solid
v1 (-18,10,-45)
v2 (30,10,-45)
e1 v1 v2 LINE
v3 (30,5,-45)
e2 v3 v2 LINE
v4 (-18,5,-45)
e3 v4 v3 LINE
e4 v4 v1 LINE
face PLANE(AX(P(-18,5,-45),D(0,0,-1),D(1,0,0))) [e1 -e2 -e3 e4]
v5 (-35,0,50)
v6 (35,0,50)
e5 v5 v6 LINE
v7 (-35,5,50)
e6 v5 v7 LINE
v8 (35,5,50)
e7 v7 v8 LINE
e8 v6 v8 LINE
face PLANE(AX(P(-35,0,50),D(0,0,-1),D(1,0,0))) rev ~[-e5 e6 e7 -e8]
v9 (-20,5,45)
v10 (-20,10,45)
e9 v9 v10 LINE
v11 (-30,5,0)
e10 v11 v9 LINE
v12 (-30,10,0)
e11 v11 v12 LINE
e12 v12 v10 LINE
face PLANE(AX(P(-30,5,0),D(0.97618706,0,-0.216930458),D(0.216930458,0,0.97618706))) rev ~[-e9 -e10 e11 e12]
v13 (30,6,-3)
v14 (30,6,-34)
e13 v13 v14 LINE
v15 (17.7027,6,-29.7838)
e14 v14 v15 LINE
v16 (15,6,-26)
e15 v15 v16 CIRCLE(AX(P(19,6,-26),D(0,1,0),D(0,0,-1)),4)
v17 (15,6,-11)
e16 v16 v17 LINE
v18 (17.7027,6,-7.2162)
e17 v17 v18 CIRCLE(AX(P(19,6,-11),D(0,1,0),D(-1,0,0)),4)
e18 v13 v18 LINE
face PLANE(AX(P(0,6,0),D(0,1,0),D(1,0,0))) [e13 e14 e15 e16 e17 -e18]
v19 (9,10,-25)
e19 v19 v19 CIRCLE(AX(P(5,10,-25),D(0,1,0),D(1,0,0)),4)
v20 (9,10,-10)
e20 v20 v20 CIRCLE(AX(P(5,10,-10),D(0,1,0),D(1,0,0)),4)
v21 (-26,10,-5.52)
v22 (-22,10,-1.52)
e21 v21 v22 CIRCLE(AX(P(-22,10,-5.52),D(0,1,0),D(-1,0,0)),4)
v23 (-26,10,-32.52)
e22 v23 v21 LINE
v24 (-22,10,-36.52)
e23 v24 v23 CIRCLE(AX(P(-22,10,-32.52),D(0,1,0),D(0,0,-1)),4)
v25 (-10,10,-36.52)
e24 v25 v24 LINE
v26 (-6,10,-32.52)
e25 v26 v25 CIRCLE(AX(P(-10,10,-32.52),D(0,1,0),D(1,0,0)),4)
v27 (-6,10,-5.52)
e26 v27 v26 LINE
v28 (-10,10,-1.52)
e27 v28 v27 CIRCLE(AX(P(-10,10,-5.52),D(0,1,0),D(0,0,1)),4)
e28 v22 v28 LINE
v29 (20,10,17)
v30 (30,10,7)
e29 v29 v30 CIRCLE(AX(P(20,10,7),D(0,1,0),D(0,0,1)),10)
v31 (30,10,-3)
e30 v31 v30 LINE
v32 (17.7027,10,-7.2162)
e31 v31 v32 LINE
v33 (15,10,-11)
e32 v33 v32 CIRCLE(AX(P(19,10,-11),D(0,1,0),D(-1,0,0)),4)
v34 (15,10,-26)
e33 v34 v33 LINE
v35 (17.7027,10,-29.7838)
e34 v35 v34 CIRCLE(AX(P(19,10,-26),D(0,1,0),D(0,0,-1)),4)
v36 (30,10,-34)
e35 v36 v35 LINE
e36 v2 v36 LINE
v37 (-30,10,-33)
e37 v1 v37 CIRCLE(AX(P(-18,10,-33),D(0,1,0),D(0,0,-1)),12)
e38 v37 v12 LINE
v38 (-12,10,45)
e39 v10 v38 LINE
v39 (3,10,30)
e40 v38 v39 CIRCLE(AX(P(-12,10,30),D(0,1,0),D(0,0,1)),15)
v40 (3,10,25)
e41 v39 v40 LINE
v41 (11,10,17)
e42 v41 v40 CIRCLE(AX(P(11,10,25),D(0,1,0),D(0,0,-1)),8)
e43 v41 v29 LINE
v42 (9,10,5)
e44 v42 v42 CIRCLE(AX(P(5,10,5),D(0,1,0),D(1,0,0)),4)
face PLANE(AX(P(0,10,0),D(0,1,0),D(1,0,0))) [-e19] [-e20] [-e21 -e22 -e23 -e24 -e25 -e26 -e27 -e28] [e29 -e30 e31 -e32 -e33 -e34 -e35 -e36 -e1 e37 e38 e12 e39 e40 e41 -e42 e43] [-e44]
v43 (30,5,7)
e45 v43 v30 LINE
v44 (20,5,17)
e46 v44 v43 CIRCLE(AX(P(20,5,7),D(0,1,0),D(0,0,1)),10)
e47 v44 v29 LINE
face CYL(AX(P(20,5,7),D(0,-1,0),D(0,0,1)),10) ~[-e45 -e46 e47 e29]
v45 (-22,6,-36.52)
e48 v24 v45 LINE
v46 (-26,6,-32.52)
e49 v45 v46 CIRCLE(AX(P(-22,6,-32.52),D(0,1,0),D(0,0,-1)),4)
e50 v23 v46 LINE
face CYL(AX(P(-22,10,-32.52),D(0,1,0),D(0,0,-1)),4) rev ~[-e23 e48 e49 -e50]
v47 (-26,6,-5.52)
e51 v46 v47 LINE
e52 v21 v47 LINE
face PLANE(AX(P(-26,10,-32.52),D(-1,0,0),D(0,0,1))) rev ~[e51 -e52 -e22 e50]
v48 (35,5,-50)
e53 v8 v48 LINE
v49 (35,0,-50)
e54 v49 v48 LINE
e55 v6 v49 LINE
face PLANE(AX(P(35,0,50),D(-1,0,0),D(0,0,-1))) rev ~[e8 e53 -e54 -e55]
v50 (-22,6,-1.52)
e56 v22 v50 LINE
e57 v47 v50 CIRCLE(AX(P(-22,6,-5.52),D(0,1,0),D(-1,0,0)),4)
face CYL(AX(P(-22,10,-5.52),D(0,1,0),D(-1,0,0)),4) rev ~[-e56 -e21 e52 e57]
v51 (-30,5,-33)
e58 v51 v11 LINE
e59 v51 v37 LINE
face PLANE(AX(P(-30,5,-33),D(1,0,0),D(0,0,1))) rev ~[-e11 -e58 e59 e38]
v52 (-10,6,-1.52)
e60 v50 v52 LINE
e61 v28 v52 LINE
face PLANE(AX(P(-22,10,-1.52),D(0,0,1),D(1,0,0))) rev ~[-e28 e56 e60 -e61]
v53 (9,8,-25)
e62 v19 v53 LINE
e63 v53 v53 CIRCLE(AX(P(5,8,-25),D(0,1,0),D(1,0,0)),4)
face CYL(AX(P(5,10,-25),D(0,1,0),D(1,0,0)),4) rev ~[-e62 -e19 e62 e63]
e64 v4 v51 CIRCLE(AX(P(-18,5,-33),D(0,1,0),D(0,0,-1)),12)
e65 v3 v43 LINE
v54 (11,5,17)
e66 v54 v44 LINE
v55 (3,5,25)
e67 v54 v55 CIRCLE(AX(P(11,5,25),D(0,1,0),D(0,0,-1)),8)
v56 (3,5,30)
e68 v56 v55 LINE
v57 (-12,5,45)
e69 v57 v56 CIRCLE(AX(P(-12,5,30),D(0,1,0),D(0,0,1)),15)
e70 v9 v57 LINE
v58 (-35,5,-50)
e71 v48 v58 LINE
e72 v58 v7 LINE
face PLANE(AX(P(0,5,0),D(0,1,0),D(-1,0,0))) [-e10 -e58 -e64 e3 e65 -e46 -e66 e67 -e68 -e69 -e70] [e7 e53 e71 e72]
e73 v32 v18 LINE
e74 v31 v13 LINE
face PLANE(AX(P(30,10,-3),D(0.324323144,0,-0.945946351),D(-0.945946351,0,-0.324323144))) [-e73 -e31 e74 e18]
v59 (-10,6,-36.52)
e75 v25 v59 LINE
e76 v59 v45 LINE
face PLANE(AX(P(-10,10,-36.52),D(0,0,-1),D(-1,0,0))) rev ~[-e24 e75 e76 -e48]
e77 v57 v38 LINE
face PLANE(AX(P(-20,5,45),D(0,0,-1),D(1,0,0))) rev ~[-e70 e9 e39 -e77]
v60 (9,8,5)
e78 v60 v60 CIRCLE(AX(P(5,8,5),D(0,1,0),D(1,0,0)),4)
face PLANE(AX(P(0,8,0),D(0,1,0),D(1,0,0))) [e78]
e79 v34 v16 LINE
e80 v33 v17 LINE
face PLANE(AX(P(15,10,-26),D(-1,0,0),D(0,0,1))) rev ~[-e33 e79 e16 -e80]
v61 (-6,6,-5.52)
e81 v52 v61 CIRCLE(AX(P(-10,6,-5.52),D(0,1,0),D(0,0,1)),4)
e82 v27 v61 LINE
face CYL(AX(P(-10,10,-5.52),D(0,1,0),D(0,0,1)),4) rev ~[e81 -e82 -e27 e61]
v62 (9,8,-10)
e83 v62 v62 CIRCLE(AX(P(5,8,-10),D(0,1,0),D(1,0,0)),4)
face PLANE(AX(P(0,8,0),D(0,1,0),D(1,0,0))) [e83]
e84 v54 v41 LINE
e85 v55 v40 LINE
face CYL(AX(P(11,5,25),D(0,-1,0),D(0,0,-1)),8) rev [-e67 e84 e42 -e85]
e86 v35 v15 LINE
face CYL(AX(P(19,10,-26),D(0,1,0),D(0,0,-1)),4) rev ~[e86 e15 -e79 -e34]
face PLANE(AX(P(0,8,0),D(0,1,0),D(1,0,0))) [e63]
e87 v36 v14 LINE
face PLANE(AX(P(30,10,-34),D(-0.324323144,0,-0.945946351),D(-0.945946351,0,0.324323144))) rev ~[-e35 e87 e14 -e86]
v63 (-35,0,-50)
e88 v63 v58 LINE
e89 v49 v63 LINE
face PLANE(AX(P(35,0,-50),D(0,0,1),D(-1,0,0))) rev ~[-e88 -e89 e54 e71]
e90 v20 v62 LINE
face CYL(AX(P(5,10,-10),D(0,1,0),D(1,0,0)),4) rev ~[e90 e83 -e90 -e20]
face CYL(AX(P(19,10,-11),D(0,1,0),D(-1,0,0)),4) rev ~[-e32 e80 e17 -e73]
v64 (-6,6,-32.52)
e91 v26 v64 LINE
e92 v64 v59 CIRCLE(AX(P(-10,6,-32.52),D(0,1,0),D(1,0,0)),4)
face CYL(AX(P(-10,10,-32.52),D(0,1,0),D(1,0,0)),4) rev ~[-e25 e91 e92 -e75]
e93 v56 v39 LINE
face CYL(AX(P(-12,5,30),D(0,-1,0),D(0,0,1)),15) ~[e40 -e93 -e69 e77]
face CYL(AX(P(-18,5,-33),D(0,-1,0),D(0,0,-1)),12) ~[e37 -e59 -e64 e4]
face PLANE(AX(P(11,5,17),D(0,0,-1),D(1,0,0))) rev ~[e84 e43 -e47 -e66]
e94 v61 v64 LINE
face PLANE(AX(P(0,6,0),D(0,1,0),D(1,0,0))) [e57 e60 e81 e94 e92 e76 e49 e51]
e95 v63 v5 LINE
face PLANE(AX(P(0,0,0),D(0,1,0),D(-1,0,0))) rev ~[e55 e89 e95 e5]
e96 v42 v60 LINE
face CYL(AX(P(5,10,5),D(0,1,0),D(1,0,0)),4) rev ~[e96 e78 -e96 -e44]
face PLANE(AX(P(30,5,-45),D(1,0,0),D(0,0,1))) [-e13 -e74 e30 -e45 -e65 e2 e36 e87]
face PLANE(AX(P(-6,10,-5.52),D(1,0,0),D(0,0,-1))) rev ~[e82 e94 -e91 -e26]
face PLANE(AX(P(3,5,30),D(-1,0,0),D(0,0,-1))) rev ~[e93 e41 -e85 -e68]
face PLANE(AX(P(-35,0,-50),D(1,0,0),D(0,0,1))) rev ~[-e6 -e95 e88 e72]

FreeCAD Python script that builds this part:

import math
import FreeCAD as App
import Part
import Sketcher
from FreeCAD import Vector
Q = App.Units.Quantity


def add_polygon(sketch, points):
    """Adds a closed chain of lines whose ends are joined by coincident constraints."""
    first, n = sketch.GeometryCount, len(points)
    for a, b in zip(points, points[1:] + points[:1]):
        sketch.addGeometry(Part.LineSegment(App.Vector(*a, 0), App.Vector(*b, 0)), False)
    for i in range(n):
        sketch.addConstraint(Sketcher.Constraint("Coincident", first + i, 2, first + (i + 1) % n, 1))

doc = App.newDocument("Part")
params = doc.addObject("Spreadsheet::Sheet", "Params")
for row, (alias, value) in enumerate([
    ("sketch1_width", "70 mm"),
    ("sketch1_height", "100 mm"),
    ("pad1_length", "5 mm"),
    ("sketch2_radius", "12 mm"),
    ("sketch2_radius2", "15 mm"),
    ("sketch2_radius3", "8 mm"),
    ("sketch2_radius4", "10 mm"),
    ("sketch2_height", "5 mm"),
    ("pad2_length", "5 mm"),
    ("sketch3_radius", "4 mm"),
    ("sketch3_height", "27 mm"),
    ("sketch3_height2", "15 mm"),
    ("sketch3_length", "13 mm"),
    ("pocket1_length", "4 mm"),
    ("sketch4_diameter", "8 mm"),
    ("pocket2_length", "2 mm"),
], start=1):
    params.set(f"A{row}", alias)
    params.set(f"B{row}", "=" + value)
    params.setAlias(f"B{row}", alias)

body = doc.addObject("PartDesign::Body", "Body")

sketch1 = body.newObject("Sketcher::SketchObject", "Sketch")
sketch1.AttachmentSupport = (doc.getObject("XZ_Plane"), [""])
sketch1.MapMode = "FlatFace"
add_polygon(sketch1, [(-35, -50), (-35, 50), (35, 50), (35, -50)])
sketch1.addConstraint(Sketcher.Constraint("Vertical", 0))
sketch1.addConstraint(Sketcher.Constraint("Horizontal", 1))
sketch1.addConstraint(Sketcher.Constraint("Vertical", 2))
sketch1.addConstraint(Sketcher.Constraint("Horizontal", 3))
sketch1.addConstraint(Sketcher.Constraint("Symmetric", 0, 2, 2, 2, -1, 1))
sketch1.addConstraint(Sketcher.Constraint("DistanceX", 1, 1, 1, 2, Q("70 mm")))
sketch1.addConstraint(Sketcher.Constraint("DistanceY", 0, 1, 0, 2, Q("100 mm")))
sketch1.setExpression("Constraints[9]", "Params.sketch1_width")
sketch1.setExpression("Constraints[10]", "Params.sketch1_height")
pad1 = body.newObject("PartDesign::Pad", "Pad")
pad1.Profile = sketch1
pad1.setExpression("Length", "Params.pad1_length")
pad1.Reversed = True

sketch2 = body.newObject("Sketcher::SketchObject", "Sketch001")
sketch2.AttachmentSupport = (doc.getObject("XZ_Plane"), [""])
sketch2.MapMode = "FlatFace"
sketch2.AttachmentOffset = App.Placement(Vector(0, 0, -5), App.Rotation())
sketch2.addGeometry(Part.LineSegment(Vector(30, 7, 0), Vector(30, -45, 0)), False)
sketch2.addGeometry(Part.LineSegment(Vector(30, -45, 0), Vector(-18, -45, 0)), False)
sketch2.addGeometry(Part.ArcOfCircle(Part.Circle(Vector(-18, -33, 0), Vector(0, 0, 1), 12), math.radians(180), math.radians(270)), False)
sketch2.addGeometry(Part.LineSegment(Vector(-30, -33, 0), Vector(-30, 0, 0)), False)
sketch2.addGeometry(Part.LineSegment(Vector(-30, 0, 0), Vector(-20, 45, 0)), False)
sketch2.addGeometry(Part.LineSegment(Vector(-20, 45, 0), Vector(-12, 45, 0)), False)
sketch2.addGeometry(Part.ArcOfCircle(Part.Circle(Vector(-12, 30, 0), Vector(0, 0, 1), 15), math.radians(0), math.radians(90)), False)
sketch2.addGeometry(Part.LineSegment(Vector(3, 30, 0), Vector(3, 25, 0)), False)
sketch2.addGeometry(Part.ArcOfCircle(Part.Circle(Vector(11, 25, 0), Vector(0, 0, 1), 8), math.radians(180), math.radians(270)), False)
sketch2.addGeometry(Part.LineSegment(Vector(11, 17, 0), Vector(20, 17, 0)), False)
sketch2.addGeometry(Part.ArcOfCircle(Part.Circle(Vector(20, 7, 0), Vector(0, 0, 1), 10), math.radians(0), math.radians(90)), False)
sketch2.addConstraint(Sketcher.Constraint("Coincident", 0, 2, 1, 1))
sketch2.addConstraint(Sketcher.Constraint("Tangent", 1, 2, 2, 2))
sketch2.addConstraint(Sketcher.Constraint("Tangent", 2, 1, 3, 1))
sketch2.addConstraint(Sketcher.Constraint("Coincident", 3, 2, 4, 1))
sketch2.addConstraint(Sketcher.Constraint("Coincident", 4, 2, 5, 1))
sketch2.addConstraint(Sketcher.Constraint("Tangent", 5, 2, 6, 2))
sketch2.addConstraint(Sketcher.Constraint("Tangent", 6, 1, 7, 1))
sketch2.addConstraint(Sketcher.Constraint("Tangent", 7, 2, 8, 1))
sketch2.addConstraint(Sketcher.Constraint("Tangent", 8, 2, 9, 1))
sketch2.addConstraint(Sketcher.Constraint("Tangent", 9, 2, 10, 2))
sketch2.addConstraint(Sketcher.Constraint("Tangent", 10, 1, 0, 1))
sketch2.addConstraint(Sketcher.Constraint("Vertical", 0))
sketch2.addConstraint(Sketcher.Constraint("Horizontal", 1))
sketch2.addConstraint(Sketcher.Constraint("Vertical", 3))
sketch2.addConstraint(Sketcher.Constraint("Horizontal", 5))
sketch2.addConstraint(Sketcher.Constraint("Vertical", 7))
sketch2.addConstraint(Sketcher.Constraint("Horizontal", 9))
sketch2.addConstraint(Sketcher.Constraint("PointOnObject", 3, 2, -1))
sketch2.addConstraint(Sketcher.Constraint("Radius", 2, Q("12 mm")))
sketch2.addConstraint(Sketcher.Constraint("Radius", 6, Q("15 mm")))
sketch2.addConstraint(Sketcher.Constraint("Radius", 8, Q("8 mm")))
sketch2.addConstraint(Sketcher.Constraint("Radius", 10, Q("10 mm")))
sketch2.addConstraint(Sketcher.Constraint("DistanceY", 7, 2, 7, 1, Q("5 mm")))
sketch2.addConstraint(Sketcher.Constraint("DistanceY", -1, 1, 6, 3, Q("30 mm")))
sketch2.addConstraint(Sketcher.Constraint("DistanceX", -1, 1, 10, 3, Q("20 mm")))
sketch2.addConstraint(Sketcher.Constraint("DistanceX", 2, 1, -1, 1, Q("30 mm")))
sketch2.addConstraint(Sketcher.Constraint("DistanceX", 4, 2, -1, 1, Q("20 mm")))
sketch2.addConstraint(Sketcher.Constraint("DistanceX", 6, 3, 10, 3, Q("32 mm")))
sketch2.addConstraint(Sketcher.Constraint("DistanceY", 0, 2, 0, 1, Q("52 mm")))
sketch2.setExpression("Constraints[18]", "Params.sketch2_radius")
sketch2.setExpression("Constraints[19]", "Params.sketch2_radius2")
sketch2.setExpression("Constraints[20]", "Params.sketch2_radius3")
sketch2.setExpression("Constraints[21]", "Params.sketch2_radius4")
sketch2.setExpression("Constraints[22]", "Params.sketch2_height")
pad2 = body.newObject("PartDesign::Pad", "Pad001")
pad2.Profile = sketch2
pad2.setExpression("Length", "Params.pad2_length")
pad2.Reversed = True

sketch3 = body.newObject("Sketcher::SketchObject", "Sketch002")
sketch3.AttachmentSupport = (doc.getObject("XZ_Plane"), [""])
sketch3.MapMode = "FlatFace"
sketch3.AttachmentOffset = App.Placement(Vector(0, 0, -10), App.Rotation())
sketch3.addGeometry(Part.ArcOfCircle(Part.Circle(Vector(-22, -5.5, 0), Vector(0, 0, 1), 4), math.radians(90), math.radians(180)), False)
sketch3.addGeometry(Part.LineSegment(Vector(-22, -1.5, 0), Vector(-10, -1.5, 0)), False)
sketch3.addGeometry(Part.ArcOfCircle(Part.Circle(Vector(-10, -5.5, 0), Vector(0, 0, 1), 4), math.radians(0), math.radians(90)), False)
sketch3.addGeometry(Part.LineSegment(Vector(-6, -5.5, 0), Vector(-6, -32.5, 0)), False)
sketch3.addGeometry(Part.ArcOfCircle(Part.Circle(Vector(-10, -32.5, 0), Vector(0, 0, 1), 4), math.radians(-90), math.radians(0)), False)
sketch3.addGeometry(Part.LineSegment(Vector(-10, -36.5, 0), Vector(-22, -36.5, 0)), False)
sketch3.addGeometry(Part.ArcOfCircle(Part.Circle(Vector(-22, -32.5, 0), Vector(0, 0, 1), 4), math.radians(180), math.radians(270)), False)
sketch3.addGeometry(Part.LineSegment(Vector(-26, -32.5, 0), Vector(-26, -5.5, 0)), False)
sketch3.addGeometry(Part.ArcOfCircle(Part.Circle(Vector(19, -26, 0), Vector(0, 0, 1), 4), math.radians(180), math.radians(251)), False)
sketch3.addGeometry(Part.LineSegment(Vector(15, -26, 0), Vector(15, -11, 0)), False)
sketch3.addGeometry(Part.ArcOfCircle(Part.Circle(Vector(19, -11, 0), Vector(0, 0, 1), 4), math.radians(109), math.radians(180)), False)
sketch3.addGeometry(Part.LineSegment(Vector(17.7, -7.2, 0), Vector(30, -3, 0)), False)
sketch3.addGeometry(Part.LineSegment(Vector(30, -3, 0), Vector(30, -34, 0)), False)
sketch3.addGeometry(Part.LineSegment(Vector(30, -34, 0), Vector(17.7, -29.8, 0)), False)
sketch3.addConstraint(Sketcher.Constraint("Tangent", 0, 1, 1, 1))
sketch3.addConstraint(Sketcher.Constraint("Tangent", 1, 2, 2, 2))
sketch3.addConstraint(Sketcher.Constraint("Tangent", 2, 1, 3, 1))
sketch3.addConstraint(Sketcher.Constraint("Tangent", 3, 2, 4, 2))
sketch3.addConstraint(Sketcher.Constraint("Tangent", 4, 1, 5, 1))
sketch3.addConstraint(Sketcher.Constraint("Tangent", 5, 2, 6, 2))
sketch3.addConstraint(Sketcher.Constraint("Tangent", 6, 1, 7, 1))
sketch3.addConstraint(Sketcher.Constraint("Tangent", 7, 2, 0, 2))
sketch3.addConstraint(Sketcher.Constraint("Tangent", 8, 1, 9, 1))
sketch3.addConstraint(Sketcher.Constraint("Tangent", 9, 2, 10, 2))
sketch3.addConstraint(Sketcher.Constraint("Tangent", 10, 1, 11, 1))
sketch3.addConstraint(Sketcher.Constraint("Coincident", 11, 2, 12, 1))
sketch3.addConstraint(Sketcher.Constraint("Coincident", 12, 2, 13, 1))
sketch3.addConstraint(Sketcher.Constraint("Tangent", 13, 2, 8, 2))
sketch3.addConstraint(Sketcher.Constraint("Horizontal", 1))
sketch3.addConstraint(Sketcher.Constraint("Vertical", 3))
sketch3.addConstraint(Sketcher.Constraint("Horizontal", 5))
sketch3.addConstraint(Sketcher.Constraint("Vertical", 7))
sketch3.addConstraint(Sketcher.Constraint("Vertical", 9))
sketch3.addConstraint(Sketcher.Constraint("Vertical", 12))
sketch3.addConstraint(Sketcher.Constraint("Equal", 0, 2))
sketch3.addConstraint(Sketcher.Constraint("Equal", 2, 4))
sketch3.addConstraint(Sketcher.Constraint("Equal", 4, 6))
sketch3.addConstraint(Sketcher.Constraint("Equal", 6, 8))
sketch3.addConstraint(Sketcher.Constraint("Equal", 8, 10))
sketch3.addConstraint(Sketcher.Constraint("Vertical", 10, 1, 13, 2))
sketch3.addConstraint(Sketcher.Constraint("Radius", 0, Q("4 mm")))
sketch3.addConstraint(Sketcher.Constraint("DistanceX", 6, 1, 3, 2, Q("20 mm")))
sketch3.addConstraint(Sketcher.Constraint("DistanceY", 10, 3, 11, 2, Q("8 mm")))
sketch3.addConstraint(Sketcher.Constraint("DistanceY", 3, 2, 3, 1, Q("27 mm")))
sketch3.addConstraint(Sketcher.Constraint("DistanceY", 9, 1, 9, 2, Q("15 mm")))
sketch3.addConstraint(Sketcher.Constraint("Distance", 11, Q("13 mm")))
sketch3.addConstraint(Sketcher.Constraint("DistanceX", 0, 3, -1, 1, Q("22 mm")))
sketch3.addConstraint(Sketcher.Constraint("DistanceX", -1, 1, 8, 3, Q("19 mm")))
sketch3.addConstraint(Sketcher.Constraint("DistanceY", 8, 3, -1, 1, Q("26 mm")))
sketch3.addConstraint(Sketcher.Constraint("DistanceY", 0, 3, -1, 1, Q("5.52 mm")))
sketch3.setExpression("Constraints[26]", "Params.sketch3_radius")
sketch3.setExpression("Constraints[29]", "Params.sketch3_height")
sketch3.setExpression("Constraints[30]", "Params.sketch3_height2")
sketch3.setExpression("Constraints[31]", "Params.sketch3_length")
pocket1 = body.newObject("PartDesign::Pocket", "Pocket")
pocket1.Profile = sketch3
pocket1.setExpression("Length", "Params.pocket1_length")
pocket1.Reversed = True

sketch4 = body.newObject("Sketcher::SketchObject", "Sketch003")
sketch4.AttachmentSupport = (doc.getObject("XZ_Plane"), [""])
sketch4.MapMode = "FlatFace"
sketch4.AttachmentOffset = App.Placement(Vector(0, 0, -10), App.Rotation())
sketch4.addGeometry(Part.Circle(Vector(5, 5, 0), Vector(0, 0, 1), 4), False)
sketch4.addGeometry(Part.Circle(Vector(5, -10, 0), Vector(0, 0, 1), 4), False)
sketch4.addGeometry(Part.Circle(Vector(5, -25, 0), Vector(0, 0, 1), 4), False)
sketch4.addConstraint(Sketcher.Constraint("Equal", 0, 1))
sketch4.addConstraint(Sketcher.Constraint("Equal", 1, 2))
sketch4.addConstraint(Sketcher.Constraint("Vertical", 0, 3, 1, 3))
sketch4.addConstraint(Sketcher.Constraint("Vertical", 1, 3, 2, 3))
sketch4.addConstraint(Sketcher.Constraint("Diameter", 0, Q("8 mm")))
sketch4.addConstraint(Sketcher.Constraint("DistanceY", 2, 3, 0, 3, Q("30 mm")))
sketch4.addConstraint(Sketcher.Constraint("DistanceX", -1, 1, 0, 3, Q("5 mm")))
sketch4.addConstraint(Sketcher.Constraint("DistanceY", -1, 1, 0, 3, Q("5 mm")))
sketch4.addConstraint(Sketcher.Constraint("DistanceY", 1, 3, -1, 1, Q("10 mm")))
sketch4.setExpression("Constraints[4]", "Params.sketch4_diameter")
pocket2 = body.newObject("PartDesign::Pocket", "Pocket001")
pocket2.Profile = sketch4
pocket2.setExpression("Length", "Params.pocket2_length")
pocket2.Reversed = True

doc.recompute()
